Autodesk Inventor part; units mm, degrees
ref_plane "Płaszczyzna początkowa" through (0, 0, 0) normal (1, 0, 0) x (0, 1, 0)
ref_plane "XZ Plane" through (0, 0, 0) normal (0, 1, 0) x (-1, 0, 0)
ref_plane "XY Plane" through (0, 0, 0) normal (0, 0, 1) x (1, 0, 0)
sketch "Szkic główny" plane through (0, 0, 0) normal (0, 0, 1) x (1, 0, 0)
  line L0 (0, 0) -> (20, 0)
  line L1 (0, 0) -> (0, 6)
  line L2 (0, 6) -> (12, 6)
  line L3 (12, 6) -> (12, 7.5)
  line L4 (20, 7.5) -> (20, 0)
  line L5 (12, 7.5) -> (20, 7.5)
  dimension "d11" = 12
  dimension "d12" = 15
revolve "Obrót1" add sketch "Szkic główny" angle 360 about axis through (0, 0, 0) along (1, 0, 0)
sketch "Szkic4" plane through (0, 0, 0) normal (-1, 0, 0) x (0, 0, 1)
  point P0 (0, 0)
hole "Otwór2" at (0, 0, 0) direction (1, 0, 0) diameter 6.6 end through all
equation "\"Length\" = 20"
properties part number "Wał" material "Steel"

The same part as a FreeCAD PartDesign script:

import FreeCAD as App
import Part
import Sketcher
Q = App.Units.Quantity


def add_polygon(sketch, points):
    """Adds a closed chain of lines whose ends are joined by coincident constraints."""
    first, n = sketch.GeometryCount, len(points)
    for a, b in zip(points, points[1:] + points[:1]):
        sketch.addGeometry(Part.LineSegment(App.Vector(*a, 0), App.Vector(*b, 0)), False)
    for i in range(n):
        sketch.addConstraint(Sketcher.Constraint("Coincident", first + i, 2, first + (i + 1) % n, 1))

doc = App.newDocument("Part")
params = doc.addObject("Spreadsheet::Sheet", "Params")
for row, (alias, value) in enumerate([
    ("sketch1_width", "12 mm"),
    ("sketch1_width2", "20 mm"),
    ("sketch1_height", "6 mm"),
    ("sketch1_height2", "7.5 mm"),
    ("revolution_angle", "360 deg"),
    ("sketch2_diameter", "6.6 mm"),
    ("hole_diameter", "6.6 mm"),
], start=1):
    params.set(f"A{row}", alias)
    params.set(f"B{row}", "=" + value)
    params.setAlias(f"B{row}", alias)

body = doc.addObject("PartDesign::Body", "Body")

sketch1 = doc.addObject("Sketcher::SketchObject", "Sketch")
body.addObject(sketch1)
sketch1.AttachmentSupport = (doc.XY_Plane, [""])
sketch1.MapMode = "FlatFace"
add_polygon(sketch1, [(0, 6), (0, 0), (20, 0), (20, 7.5), (12, 7.5), (12, 6)])
sketch1.addConstraint([
    Sketcher.Constraint("Vertical", 0),
    Sketcher.Constraint("Horizontal", 1),
    Sketcher.Constraint("Vertical", 2),
    Sketcher.Constraint("Horizontal", 3),
    Sketcher.Constraint("Vertical", 4),
    Sketcher.Constraint("Horizontal", 5),
    Sketcher.Constraint("Coincident", 0, 2, -1, 1),
    Sketcher.Constraint("DistanceX", 5, 2, 5, 1, Q("12 mm")),
    Sketcher.Constraint("DistanceX", 1, 1, 1, 2, Q("20 mm")),
    Sketcher.Constraint("DistanceY", 0, 2, 0, 1, Q("6 mm")),
    Sketcher.Constraint("DistanceY", 2, 1, 2, 2, Q("7.5 mm")),
])
sketch1.setExpression("Constraints[13]", "Params.sketch1_width")
sketch1.setExpression("Constraints[14]", "Params.sketch1_width2")
sketch1.setExpression("Constraints[15]", "Params.sketch1_height")
sketch1.setExpression("Constraints[16]", "Params.sketch1_height2")
revolution = doc.addObject("PartDesign::Revolution", "Revolution")
body.addObject(revolution)
revolution.Profile = sketch1
revolution.ReferenceAxis = (sketch1, ["H_Axis"])
revolution.setExpression("Angle", "Params.revolution_angle")

sketch2 = doc.addObject("Sketcher::SketchObject", "Sketch001")
body.addObject(sketch2)
sketch2.AttachmentSupport = (doc.YZ_Plane, [""])
sketch2.MapMode = "FlatFace"
sketch2.addGeometry(Part.Circle(App.Vector(0, 0, 0), App.Vector(0, 0, 1), 3.3), False)
sketch2.addConstraint([
    Sketcher.Constraint("Coincident", 0, 3, -1, 1),
    Sketcher.Constraint("Diameter", 0, Q("6.6 mm")),
])
sketch2.setExpression("Constraints[1]", "Params.sketch2_diameter")
doc.recompute()
hole = doc.addObject("PartDesign::Hole", "Hole")
body.addObject(hole)
hole.Profile = sketch2
hole.ThreadType = "None"
hole.setExpression("Diameter", "Params.hole_diameter")
hole.DepthType = "ThroughAll"
hole.Reversed = True

doc.recompute()
